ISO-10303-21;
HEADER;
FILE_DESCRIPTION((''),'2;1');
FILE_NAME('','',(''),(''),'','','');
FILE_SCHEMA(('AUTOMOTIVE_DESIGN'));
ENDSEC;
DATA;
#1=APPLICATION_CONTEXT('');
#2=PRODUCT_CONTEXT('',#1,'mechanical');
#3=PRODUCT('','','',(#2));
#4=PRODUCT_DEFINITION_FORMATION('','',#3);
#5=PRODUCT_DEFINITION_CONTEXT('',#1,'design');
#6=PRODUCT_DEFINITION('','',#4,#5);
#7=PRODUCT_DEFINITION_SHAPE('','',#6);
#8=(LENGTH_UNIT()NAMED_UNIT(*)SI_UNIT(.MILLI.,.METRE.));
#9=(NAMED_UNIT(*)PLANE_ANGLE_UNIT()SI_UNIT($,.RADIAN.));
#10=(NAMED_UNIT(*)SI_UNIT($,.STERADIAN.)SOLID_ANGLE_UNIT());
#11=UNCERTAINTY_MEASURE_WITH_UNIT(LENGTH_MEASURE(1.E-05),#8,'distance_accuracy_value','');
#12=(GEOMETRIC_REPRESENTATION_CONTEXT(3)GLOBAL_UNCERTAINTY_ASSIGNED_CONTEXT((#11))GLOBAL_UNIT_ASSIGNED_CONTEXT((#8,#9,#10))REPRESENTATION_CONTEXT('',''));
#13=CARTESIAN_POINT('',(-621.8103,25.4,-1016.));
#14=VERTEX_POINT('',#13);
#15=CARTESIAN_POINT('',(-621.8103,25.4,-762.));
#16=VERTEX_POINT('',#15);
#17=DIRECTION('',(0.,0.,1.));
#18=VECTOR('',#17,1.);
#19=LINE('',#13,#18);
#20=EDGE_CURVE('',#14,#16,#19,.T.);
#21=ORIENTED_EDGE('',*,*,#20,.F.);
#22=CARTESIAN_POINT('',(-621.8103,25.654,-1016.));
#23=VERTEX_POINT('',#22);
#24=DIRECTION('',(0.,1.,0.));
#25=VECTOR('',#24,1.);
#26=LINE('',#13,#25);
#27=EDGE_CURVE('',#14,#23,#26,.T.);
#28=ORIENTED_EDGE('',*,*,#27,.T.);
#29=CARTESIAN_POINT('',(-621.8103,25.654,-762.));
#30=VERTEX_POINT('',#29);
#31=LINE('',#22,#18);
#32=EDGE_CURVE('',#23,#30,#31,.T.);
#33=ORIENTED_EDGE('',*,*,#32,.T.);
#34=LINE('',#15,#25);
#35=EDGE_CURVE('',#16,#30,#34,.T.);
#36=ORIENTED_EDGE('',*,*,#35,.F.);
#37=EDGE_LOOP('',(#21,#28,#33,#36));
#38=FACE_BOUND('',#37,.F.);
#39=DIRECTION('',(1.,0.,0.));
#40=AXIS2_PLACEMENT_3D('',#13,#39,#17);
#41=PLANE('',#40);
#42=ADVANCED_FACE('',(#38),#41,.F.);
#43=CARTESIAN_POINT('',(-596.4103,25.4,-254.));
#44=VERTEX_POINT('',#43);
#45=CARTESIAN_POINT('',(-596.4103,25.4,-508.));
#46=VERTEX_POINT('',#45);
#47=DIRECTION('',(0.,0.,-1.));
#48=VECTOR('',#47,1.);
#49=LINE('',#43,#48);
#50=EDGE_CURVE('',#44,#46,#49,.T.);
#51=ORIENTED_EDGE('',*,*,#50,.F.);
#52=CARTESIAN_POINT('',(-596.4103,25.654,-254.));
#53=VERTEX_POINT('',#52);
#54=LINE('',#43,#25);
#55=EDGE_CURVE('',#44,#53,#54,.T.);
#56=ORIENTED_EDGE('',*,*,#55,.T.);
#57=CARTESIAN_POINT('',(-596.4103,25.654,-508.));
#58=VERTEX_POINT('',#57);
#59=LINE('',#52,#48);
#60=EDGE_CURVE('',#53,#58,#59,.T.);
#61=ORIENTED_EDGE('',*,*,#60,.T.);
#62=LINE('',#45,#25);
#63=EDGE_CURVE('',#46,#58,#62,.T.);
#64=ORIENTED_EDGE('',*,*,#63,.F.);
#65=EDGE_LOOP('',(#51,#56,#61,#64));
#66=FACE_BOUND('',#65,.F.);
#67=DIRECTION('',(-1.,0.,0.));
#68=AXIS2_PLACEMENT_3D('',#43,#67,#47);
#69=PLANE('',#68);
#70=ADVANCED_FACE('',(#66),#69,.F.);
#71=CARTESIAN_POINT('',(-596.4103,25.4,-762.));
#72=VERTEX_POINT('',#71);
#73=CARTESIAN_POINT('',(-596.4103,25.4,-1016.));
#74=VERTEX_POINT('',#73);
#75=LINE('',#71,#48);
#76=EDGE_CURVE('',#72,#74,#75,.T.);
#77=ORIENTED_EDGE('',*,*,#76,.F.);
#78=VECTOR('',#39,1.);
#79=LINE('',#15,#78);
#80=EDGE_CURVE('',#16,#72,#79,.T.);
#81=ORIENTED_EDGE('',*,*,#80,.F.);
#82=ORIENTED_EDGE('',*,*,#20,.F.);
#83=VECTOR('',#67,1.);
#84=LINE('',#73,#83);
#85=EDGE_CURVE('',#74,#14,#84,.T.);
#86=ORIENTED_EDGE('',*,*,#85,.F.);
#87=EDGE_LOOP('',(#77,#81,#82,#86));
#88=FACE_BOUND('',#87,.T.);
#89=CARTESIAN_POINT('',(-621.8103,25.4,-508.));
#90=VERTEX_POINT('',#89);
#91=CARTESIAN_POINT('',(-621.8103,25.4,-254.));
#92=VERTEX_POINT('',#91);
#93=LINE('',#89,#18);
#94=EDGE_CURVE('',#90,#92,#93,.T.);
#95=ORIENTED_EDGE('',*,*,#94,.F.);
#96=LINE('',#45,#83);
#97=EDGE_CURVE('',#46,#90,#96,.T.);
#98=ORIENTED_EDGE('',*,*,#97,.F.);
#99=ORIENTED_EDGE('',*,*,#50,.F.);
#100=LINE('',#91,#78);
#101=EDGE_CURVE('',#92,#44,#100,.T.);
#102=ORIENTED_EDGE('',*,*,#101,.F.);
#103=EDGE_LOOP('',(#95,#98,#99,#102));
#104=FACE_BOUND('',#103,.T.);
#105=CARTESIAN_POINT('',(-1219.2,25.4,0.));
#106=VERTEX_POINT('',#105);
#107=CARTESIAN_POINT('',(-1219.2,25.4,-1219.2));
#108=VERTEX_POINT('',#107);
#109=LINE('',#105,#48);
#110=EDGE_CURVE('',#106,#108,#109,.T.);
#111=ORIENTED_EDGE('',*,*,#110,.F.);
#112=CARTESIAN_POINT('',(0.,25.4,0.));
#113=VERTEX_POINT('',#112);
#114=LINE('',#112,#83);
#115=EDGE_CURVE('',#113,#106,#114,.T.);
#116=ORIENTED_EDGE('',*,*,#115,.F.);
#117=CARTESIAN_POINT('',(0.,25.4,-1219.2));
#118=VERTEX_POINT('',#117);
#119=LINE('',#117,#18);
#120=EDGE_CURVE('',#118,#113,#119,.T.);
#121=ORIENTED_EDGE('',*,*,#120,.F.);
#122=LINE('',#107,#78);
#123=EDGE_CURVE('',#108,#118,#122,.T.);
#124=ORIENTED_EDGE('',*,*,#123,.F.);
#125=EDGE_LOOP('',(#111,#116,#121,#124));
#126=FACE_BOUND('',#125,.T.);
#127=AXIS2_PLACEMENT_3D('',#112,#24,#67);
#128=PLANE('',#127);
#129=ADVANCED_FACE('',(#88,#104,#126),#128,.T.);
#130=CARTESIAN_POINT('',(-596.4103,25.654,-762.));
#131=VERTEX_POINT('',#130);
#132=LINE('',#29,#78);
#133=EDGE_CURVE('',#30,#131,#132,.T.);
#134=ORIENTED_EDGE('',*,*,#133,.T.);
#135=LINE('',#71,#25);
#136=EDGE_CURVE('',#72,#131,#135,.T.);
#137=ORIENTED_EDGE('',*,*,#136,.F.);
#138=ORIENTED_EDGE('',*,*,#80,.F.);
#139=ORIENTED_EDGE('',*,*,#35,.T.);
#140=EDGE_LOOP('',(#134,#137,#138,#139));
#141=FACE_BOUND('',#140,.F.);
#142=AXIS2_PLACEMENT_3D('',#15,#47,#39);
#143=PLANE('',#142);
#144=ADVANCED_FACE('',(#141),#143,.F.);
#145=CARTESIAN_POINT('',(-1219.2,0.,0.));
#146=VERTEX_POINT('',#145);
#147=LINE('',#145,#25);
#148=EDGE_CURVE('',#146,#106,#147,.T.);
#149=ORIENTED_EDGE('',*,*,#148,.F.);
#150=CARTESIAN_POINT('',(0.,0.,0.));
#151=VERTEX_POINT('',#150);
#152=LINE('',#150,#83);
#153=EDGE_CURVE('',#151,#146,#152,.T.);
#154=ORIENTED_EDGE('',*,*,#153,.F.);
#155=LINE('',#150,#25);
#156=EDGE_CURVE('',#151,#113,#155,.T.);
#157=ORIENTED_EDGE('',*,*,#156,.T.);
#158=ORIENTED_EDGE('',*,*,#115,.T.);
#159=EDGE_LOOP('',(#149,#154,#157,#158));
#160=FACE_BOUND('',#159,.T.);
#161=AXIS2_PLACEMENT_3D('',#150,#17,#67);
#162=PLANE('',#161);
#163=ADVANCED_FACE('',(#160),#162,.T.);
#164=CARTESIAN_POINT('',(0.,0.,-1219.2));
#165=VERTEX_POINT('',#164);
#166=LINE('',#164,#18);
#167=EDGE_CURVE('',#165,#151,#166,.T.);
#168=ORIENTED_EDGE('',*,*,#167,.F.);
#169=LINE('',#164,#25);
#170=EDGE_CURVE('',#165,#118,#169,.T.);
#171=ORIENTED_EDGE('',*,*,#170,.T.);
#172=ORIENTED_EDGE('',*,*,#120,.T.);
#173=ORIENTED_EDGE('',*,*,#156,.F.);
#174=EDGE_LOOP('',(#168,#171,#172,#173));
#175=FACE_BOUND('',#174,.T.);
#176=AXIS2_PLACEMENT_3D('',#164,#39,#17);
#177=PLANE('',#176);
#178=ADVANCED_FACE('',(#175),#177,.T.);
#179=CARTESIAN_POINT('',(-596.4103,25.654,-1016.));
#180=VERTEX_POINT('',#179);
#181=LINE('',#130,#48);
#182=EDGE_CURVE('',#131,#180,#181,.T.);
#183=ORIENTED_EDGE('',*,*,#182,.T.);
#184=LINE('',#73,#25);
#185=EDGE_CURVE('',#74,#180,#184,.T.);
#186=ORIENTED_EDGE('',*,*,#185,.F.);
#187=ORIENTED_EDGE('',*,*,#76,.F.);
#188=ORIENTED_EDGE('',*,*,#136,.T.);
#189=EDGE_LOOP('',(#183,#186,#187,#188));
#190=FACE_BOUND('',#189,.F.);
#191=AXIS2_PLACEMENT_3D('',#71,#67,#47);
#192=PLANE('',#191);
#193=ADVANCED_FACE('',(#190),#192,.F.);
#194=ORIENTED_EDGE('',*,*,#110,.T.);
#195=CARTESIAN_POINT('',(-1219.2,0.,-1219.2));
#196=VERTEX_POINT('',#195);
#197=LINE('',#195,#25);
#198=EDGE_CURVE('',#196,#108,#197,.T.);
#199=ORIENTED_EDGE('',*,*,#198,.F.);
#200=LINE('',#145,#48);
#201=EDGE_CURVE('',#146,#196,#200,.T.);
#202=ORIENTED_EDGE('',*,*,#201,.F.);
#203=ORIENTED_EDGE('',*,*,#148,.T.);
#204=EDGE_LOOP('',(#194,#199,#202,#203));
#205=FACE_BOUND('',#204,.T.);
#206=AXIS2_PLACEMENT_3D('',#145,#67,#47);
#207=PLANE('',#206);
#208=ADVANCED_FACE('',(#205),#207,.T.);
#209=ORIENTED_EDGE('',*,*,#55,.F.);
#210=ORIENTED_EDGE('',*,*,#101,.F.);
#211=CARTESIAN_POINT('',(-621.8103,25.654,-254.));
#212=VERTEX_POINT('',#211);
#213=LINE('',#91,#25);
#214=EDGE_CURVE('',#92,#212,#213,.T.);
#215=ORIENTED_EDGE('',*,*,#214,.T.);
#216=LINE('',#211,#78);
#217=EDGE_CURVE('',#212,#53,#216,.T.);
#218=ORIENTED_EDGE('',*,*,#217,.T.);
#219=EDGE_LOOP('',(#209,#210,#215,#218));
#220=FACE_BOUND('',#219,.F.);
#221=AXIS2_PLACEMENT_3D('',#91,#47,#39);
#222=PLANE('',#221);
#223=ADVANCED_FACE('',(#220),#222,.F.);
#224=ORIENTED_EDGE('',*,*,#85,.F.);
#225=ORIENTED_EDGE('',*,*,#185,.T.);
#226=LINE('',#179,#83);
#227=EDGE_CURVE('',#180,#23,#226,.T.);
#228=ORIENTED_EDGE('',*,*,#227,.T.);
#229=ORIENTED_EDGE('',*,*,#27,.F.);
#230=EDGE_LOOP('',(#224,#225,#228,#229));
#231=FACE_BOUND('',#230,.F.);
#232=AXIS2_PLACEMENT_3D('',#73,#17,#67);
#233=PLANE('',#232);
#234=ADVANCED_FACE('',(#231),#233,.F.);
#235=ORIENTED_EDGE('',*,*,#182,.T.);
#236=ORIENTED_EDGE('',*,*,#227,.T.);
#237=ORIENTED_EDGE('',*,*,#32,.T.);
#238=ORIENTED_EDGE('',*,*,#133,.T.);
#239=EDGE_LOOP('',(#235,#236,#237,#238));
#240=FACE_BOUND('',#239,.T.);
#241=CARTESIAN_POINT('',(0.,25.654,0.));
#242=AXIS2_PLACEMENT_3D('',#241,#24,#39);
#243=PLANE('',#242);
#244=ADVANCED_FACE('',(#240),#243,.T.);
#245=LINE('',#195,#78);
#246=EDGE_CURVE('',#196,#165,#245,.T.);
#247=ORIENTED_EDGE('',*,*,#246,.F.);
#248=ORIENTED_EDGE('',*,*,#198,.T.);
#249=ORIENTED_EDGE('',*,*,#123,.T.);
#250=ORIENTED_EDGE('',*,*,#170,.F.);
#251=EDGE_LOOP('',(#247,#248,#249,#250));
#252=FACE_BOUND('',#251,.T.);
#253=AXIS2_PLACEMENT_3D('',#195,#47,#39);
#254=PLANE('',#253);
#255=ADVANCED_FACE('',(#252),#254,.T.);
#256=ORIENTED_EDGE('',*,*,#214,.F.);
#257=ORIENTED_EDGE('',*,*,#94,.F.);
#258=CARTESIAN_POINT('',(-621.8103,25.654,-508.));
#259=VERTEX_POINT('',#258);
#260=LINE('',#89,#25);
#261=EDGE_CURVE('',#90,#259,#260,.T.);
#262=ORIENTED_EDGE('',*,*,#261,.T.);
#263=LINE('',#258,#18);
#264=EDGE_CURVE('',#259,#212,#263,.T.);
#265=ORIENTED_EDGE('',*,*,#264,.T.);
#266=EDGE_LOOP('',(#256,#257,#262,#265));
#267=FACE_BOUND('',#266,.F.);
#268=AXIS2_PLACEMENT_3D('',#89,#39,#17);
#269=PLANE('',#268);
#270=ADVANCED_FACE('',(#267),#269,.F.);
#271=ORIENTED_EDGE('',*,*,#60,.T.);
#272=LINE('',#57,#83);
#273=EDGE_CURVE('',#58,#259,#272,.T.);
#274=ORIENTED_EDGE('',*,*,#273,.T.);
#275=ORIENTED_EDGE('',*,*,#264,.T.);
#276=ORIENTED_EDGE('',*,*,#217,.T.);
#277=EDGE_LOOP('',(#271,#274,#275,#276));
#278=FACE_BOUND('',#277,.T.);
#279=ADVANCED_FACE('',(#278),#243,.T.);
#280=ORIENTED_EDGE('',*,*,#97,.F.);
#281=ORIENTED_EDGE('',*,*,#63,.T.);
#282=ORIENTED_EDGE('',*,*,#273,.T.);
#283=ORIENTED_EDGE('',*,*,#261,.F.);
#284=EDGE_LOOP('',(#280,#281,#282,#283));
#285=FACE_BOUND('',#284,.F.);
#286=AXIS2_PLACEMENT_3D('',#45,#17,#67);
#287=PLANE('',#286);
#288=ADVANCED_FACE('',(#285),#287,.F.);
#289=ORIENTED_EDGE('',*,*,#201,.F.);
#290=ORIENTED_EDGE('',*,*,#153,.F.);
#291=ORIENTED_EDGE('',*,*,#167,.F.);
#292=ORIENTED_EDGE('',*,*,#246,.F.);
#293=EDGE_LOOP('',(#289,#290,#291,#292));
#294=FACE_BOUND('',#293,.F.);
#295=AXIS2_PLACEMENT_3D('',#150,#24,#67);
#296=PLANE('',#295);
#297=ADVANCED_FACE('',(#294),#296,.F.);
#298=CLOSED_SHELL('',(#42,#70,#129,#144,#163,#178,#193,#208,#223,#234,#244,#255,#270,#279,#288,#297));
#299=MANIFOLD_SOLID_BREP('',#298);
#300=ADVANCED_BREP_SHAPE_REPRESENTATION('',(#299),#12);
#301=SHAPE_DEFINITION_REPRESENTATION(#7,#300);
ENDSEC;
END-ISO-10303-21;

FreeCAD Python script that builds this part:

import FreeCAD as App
import Part
import Sketcher
from FreeCAD import Vector
Q = App.Units.Quantity

doc = App.newDocument("Part")
body = doc.addObject("PartDesign::Body", "Body")

# Sketch on XZ plane
sketch1 = body.newObject("Sketcher::SketchObject", "Sketch")
sketch1.AttachmentSupport = (doc.getObject("XZ_Plane"), [""])
sketch1.MapMode = "FlatFace"
sketch1.addGeometry([
    Part.LineSegment(Vector(-1219, 0, 0), Vector(0, 0, 0)),
    Part.LineSegment(Vector(0, 0, 0), Vector(0, -1219, 0)),
    Part.LineSegment(Vector(0, -1219, 0), Vector(-1219, -1219, 0)),
    Part.LineSegment(Vector(-1219, -1219, 0), Vector(-1219, 0, 0)),
], False)
sketch1.addConstraint([
    Sketcher.Constraint("Coincident", 0, 2, 1, 1),
    Sketcher.Constraint("Coincident", 1, 2, 2, 1),
    Sketcher.Constraint("Coincident", 2, 2, 3, 1),
    Sketcher.Constraint("Coincident", 3, 2, 0, 1),
    Sketcher.Constraint("Horizontal", 0),
    Sketcher.Constraint("Vertical", 1),
    Sketcher.Constraint("Horizontal", 2),
    Sketcher.Constraint("Vertical", 3),
    Sketcher.Constraint("Coincident", 0, 2, -1, 1),
    Sketcher.Constraint("Equal", 2, 1),
    Sketcher.Constraint("DistanceX", 0, 1, 0, 2, Q("48 in")),
])
pad1 = body.newObject("PartDesign::Pad", "Pad")
pad1.Profile = sketch1
pad1.Length = Q("1 in")
pad1.Reversed = True

# Sketch on XZ plane
sketch2 = body.newObject("Sketcher::SketchObject", "Sketch001")
sketch2.AttachmentSupport = (doc.getObject("XZ_Plane"), [""])
sketch2.MapMode = "FlatFace"
sketch2.AttachmentOffset = App.Placement(Vector(0, 0, -1 * 25.4), App.Rotation())
sketch2.addGeometry([
    Part.LineSegment(Vector(-622, -508, 0), Vector(-622, -254, 0)),  # 0
    Part.LineSegment(Vector(-622, -254, 0), Vector(-596, -254, 0)),  # 1
    Part.LineSegment(Vector(-596, -254, 0), Vector(-596, -508, 0)),  # 2
    Part.LineSegment(Vector(-596, -508, 0), Vector(-622, -508, 0)),  # 3
    Part.LineSegment(Vector(-622, -1016, 0), Vector(-622, -762, 0)),  # 4
    Part.LineSegment(Vector(-622, -762, 0), Vector(-596, -762, 0)),  # 5
    Part.LineSegment(Vector(-596, -762, 0), Vector(-596, -1016, 0)),  # 6
    Part.LineSegment(Vector(-596, -1016, 0), Vector(-622, -1016, 0)),  # 7
], False)
sketch2.addConstraint([
    Sketcher.Constraint("Coincident", 0, 2, 1, 1),
    Sketcher.Constraint("Coincident", 1, 2, 2, 1),
    Sketcher.Constraint("Coincident", 2, 2, 3, 1),
    Sketcher.Constraint("Coincident", 3, 2, 0, 1),
    Sketcher.Constraint("Coincident", 4, 2, 5, 1),
    Sketcher.Constraint("Coincident", 5, 2, 6, 1),
    Sketcher.Constraint("Coincident", 6, 2, 7, 1),
    Sketcher.Constraint("Coincident", 7, 2, 4, 1),
    Sketcher.Constraint("Vertical", 0),
    Sketcher.Constraint("Horizontal", 1),
    Sketcher.Constraint("Vertical", 2),
    Sketcher.Constraint("Horizontal", 3),
    Sketcher.Constraint("Vertical", 4),
    Sketcher.Constraint("Horizontal", 5),
    Sketcher.Constraint("Vertical", 6),
    Sketcher.Constraint("Horizontal", 7),
    Sketcher.Constraint("Vertical", 3, 2, 4, 2),
    Sketcher.Constraint("Vertical", 2, 2, 5, 2),
    Sketcher.Constraint("Equal", 2, 4),
    Sketcher.Constraint("DistanceX", 1, 1, 1, 2, Q("1 in")),
    Sketcher.Constraint("DistanceY", 0, 1, 0, 2, Q("10 in")),
    Sketcher.Constraint("DistanceY", 0, 2, -1, 1, Q("10 in")),
    Sketcher.Constraint("DistanceY", 4, 2, 3, 2, Q("10 in")),
    Sketcher.Constraint("DistanceX", 0, 2, -1, 1, Q("621.8103 mm")),
])
pad2 = body.newObject("PartDesign::Pad", "Pad001")
pad2.Profile = sketch2
pad2.Length = Q("0.01 in")
pad2.Reversed = True

doc.recompute()
